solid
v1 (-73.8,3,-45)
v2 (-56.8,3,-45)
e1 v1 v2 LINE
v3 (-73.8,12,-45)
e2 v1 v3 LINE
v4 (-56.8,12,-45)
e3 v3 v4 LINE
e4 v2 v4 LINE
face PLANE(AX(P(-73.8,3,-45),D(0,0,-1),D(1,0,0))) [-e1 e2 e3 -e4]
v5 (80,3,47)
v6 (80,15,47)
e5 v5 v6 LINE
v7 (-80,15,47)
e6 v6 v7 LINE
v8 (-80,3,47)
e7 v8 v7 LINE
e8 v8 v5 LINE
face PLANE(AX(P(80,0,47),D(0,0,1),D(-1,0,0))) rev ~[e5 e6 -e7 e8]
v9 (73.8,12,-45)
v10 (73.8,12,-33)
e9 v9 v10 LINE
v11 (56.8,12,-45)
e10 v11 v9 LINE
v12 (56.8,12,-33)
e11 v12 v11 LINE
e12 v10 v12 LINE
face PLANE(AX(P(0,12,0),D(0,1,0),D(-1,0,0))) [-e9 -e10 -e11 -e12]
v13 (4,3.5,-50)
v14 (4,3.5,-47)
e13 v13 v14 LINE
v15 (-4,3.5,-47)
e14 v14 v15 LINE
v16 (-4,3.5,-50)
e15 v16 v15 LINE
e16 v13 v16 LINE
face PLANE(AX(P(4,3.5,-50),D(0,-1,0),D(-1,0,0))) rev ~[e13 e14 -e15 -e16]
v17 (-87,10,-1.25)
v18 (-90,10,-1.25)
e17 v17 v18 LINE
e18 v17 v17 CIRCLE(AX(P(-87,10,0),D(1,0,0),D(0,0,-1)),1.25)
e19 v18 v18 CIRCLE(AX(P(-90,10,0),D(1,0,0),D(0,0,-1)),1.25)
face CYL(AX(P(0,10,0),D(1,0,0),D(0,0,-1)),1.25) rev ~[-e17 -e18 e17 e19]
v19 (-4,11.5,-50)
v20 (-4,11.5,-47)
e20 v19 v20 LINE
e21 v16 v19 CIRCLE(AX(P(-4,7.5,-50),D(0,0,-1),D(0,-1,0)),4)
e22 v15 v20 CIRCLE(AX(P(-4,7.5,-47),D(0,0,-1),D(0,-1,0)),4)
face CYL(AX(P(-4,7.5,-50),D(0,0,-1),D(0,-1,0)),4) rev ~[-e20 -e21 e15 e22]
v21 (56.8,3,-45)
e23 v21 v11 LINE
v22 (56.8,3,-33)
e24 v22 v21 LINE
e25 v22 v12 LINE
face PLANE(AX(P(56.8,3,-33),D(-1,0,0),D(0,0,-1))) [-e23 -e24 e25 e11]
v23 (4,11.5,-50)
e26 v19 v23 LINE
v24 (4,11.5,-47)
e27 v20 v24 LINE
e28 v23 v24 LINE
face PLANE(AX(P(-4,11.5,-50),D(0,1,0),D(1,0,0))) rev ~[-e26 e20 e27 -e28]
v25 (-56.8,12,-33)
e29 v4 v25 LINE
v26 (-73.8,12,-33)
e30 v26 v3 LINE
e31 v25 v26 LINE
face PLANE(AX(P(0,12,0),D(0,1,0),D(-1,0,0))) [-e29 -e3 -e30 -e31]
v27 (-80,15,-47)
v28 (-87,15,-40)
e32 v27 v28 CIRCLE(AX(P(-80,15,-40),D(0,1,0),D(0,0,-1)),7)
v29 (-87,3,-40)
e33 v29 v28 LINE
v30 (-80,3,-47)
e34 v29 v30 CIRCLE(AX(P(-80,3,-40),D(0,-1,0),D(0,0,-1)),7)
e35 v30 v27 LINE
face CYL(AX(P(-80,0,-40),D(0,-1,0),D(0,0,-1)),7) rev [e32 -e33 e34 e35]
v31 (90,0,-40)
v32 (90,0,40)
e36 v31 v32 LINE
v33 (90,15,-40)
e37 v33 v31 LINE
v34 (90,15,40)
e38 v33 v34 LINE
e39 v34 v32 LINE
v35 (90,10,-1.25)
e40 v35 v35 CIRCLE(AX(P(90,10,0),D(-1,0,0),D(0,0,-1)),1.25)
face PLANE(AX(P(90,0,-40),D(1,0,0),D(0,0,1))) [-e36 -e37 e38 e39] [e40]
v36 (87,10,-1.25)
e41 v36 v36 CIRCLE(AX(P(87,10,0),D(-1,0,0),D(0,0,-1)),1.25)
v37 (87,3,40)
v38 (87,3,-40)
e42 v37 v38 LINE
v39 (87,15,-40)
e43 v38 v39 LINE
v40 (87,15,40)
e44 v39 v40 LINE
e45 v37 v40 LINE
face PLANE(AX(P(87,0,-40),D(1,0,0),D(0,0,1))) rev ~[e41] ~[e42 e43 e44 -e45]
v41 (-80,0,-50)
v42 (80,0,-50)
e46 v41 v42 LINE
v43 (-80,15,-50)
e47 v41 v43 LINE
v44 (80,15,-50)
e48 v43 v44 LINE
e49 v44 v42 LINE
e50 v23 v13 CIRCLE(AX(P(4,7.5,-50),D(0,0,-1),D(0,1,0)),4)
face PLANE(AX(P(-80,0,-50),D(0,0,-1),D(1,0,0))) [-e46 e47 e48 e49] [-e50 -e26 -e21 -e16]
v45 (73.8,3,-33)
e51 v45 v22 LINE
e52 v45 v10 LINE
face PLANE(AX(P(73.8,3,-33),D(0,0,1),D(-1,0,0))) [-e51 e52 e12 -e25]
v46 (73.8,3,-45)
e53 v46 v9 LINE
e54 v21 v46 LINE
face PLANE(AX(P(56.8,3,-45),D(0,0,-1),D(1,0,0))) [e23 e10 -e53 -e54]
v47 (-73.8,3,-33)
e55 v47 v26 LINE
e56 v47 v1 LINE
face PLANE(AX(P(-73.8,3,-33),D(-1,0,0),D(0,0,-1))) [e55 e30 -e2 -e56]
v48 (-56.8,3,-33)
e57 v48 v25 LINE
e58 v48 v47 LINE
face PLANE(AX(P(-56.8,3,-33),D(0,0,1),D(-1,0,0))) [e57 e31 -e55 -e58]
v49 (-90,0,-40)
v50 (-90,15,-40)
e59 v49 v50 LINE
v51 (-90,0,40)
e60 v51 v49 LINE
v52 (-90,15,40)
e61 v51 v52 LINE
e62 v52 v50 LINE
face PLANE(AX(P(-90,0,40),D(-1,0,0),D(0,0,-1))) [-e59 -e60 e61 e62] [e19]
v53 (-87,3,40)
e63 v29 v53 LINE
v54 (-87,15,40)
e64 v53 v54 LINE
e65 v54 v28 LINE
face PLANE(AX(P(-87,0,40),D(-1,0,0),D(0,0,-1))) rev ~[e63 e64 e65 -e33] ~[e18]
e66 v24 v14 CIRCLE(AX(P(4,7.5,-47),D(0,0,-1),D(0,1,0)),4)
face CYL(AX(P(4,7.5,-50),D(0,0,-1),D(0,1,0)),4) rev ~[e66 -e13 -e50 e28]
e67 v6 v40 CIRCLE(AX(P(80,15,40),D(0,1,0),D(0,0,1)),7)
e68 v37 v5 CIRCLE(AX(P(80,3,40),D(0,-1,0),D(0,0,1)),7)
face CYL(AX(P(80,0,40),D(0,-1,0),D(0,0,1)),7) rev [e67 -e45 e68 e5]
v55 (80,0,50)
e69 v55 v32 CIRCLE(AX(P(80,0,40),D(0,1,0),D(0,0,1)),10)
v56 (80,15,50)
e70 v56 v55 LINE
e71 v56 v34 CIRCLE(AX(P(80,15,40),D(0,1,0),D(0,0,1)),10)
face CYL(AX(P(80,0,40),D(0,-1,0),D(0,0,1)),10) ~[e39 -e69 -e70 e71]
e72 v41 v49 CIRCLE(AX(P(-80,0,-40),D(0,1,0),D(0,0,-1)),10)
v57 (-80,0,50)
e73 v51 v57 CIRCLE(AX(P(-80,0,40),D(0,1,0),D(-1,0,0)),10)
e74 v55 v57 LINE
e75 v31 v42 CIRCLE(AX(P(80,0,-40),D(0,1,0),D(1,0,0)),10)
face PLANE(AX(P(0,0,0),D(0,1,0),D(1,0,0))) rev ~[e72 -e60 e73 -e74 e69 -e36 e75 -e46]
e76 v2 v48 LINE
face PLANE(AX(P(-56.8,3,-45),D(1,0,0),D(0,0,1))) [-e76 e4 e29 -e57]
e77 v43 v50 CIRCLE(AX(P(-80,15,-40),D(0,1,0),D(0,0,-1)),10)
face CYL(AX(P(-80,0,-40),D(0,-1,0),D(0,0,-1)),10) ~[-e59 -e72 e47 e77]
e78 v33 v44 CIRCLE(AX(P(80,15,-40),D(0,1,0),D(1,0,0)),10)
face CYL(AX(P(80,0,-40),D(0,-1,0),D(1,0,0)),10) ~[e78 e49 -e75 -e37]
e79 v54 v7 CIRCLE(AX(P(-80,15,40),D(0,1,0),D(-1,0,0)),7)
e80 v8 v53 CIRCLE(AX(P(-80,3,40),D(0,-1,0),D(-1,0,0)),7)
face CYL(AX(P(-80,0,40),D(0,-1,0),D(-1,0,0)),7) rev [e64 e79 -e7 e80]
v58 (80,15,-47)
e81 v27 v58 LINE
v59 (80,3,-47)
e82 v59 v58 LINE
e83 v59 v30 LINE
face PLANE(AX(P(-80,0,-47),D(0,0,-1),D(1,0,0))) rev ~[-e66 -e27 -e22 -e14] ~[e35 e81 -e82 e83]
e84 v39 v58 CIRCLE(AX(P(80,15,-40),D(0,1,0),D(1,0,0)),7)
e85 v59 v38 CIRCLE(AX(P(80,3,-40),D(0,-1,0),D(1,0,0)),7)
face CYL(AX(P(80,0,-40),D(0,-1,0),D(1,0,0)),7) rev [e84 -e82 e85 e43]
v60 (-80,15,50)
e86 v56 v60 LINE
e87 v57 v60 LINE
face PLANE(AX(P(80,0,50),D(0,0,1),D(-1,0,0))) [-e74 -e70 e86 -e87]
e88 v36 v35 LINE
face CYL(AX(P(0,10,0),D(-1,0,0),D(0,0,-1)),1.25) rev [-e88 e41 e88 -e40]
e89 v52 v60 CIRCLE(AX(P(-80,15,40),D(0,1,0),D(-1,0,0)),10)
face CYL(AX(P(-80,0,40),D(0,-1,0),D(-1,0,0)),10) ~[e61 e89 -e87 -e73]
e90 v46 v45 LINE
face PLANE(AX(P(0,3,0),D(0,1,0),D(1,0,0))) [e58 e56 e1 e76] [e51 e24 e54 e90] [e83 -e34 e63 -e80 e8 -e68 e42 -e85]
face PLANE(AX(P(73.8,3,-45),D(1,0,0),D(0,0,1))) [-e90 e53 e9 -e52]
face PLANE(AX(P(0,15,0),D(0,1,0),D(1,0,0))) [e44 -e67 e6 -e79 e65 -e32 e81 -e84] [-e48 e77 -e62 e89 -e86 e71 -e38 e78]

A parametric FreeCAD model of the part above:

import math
import FreeCAD as App
import Part
import Sketcher

V = App.Vector


def add_polygon(sketch, points):
    """Adds a closed chain of lines whose ends are joined by coincident constraints."""
    first, n = sketch.GeometryCount, len(points)
    for a, b in zip(points, points[1:] + points[:1]):
        sketch.addGeometry(Part.LineSegment(App.Vector(*a, 0), App.Vector(*b, 0)), False)
    for i in range(n):
        sketch.addConstraint(Sketcher.Constraint("Coincident", first + i, 2, first + (i + 1) % n, 1))

doc = App.newDocument("Part")
body = doc.addObject("PartDesign::Body", "Body")

# Sketch on XZ plane
sketch1 = doc.addObject("Sketcher::SketchObject", "Sketch")
body.addObject(sketch1)
sketch1.AttachmentSupport = (doc.XZ_Plane, [""])
sketch1.MapMode = "FlatFace"
sketch1.addGeometry([
    Part.LineSegment(V(80, -50, 0), V(-80, -50, 0)),  # 0
    Part.ArcOfCircle(Part.Circle(V(-80, -40, 0), V(0, 0, 1), 10), math.radians(180), math.radians(270)),  # 1
    Part.LineSegment(V(-90, -40, 0), V(-90, 40, 0)),  # 2
    Part.ArcOfCircle(Part.Circle(V(-80, 40, 0), V(0, 0, 1), 10), math.radians(90), math.radians(180)),  # 3
    Part.LineSegment(V(-80, 50, 0), V(80, 50, 0)),  # 4
    Part.ArcOfCircle(Part.Circle(V(80, 40, 0), V(0, 0, 1), 10), math.radians(0), math.radians(90)),  # 5
    Part.LineSegment(V(90, 40, 0), V(90, -40, 0)),  # 6
    Part.ArcOfCircle(Part.Circle(V(80, -40, 0), V(0, 0, 1), 10), math.radians(-90), math.radians(0)),  # 7
], False)
sketch1.addConstraint([
    Sketcher.Constraint("Tangent", 0, 2, 1, 2),
    Sketcher.Constraint("Tangent", 1, 1, 2, 1),
    Sketcher.Constraint("Tangent", 2, 2, 3, 2),
    Sketcher.Constraint("Tangent", 3, 1, 4, 1),
    Sketcher.Constraint("Tangent", 4, 2, 5, 2),
    Sketcher.Constraint("Tangent", 5, 1, 6, 1),
    Sketcher.Constraint("Tangent", 6, 2, 7, 2),
    Sketcher.Constraint("Tangent", 7, 1, 0, 1),
    Sketcher.Constraint("Horizontal", 0),
    Sketcher.Constraint("Vertical", 2),
    Sketcher.Constraint("Horizontal", 4),
    Sketcher.Constraint("Vertical", 6),
    Sketcher.Constraint("Equal", 1, 3),
    Sketcher.Constraint("Equal", 3, 5),
    Sketcher.Constraint("Equal", 5, 7),
    Sketcher.Constraint("Symmetric", 1, 3, 5, 3, -1, 1),
    Sketcher.Constraint("Radius", 1, 10.0),
    Sketcher.Constraint("DistanceY", 0, 2, 3, 1, 100.0),
    Sketcher.Constraint("DistanceX", 0, 2, 0, 1, 160.0),
])
pad1 = doc.addObject("PartDesign::Pad", "Pad")
body.addObject(pad1)
pad1.Profile = sketch1
pad1.Length = 3
pad1.Reversed = True

# Sketch on XZ plane
sketch2 = doc.addObject("Sketcher::SketchObject", "Sketch001")
body.addObject(sketch2)
sketch2.AttachmentSupport = (doc.XZ_Plane, [""])
sketch2.MapMode = "FlatFace"
sketch2.addGeometry([
    Part.LineSegment(V(80, -50, 0), V(-80, -50, 0)),  # 0
    Part.ArcOfCircle(Part.Circle(V(-80, -40, 0), V(0, 0, 1), 10), math.radians(180), math.radians(270)),  # 1
    Part.LineSegment(V(-90, -40, 0), V(-90, 40, 0)),  # 2
    Part.ArcOfCircle(Part.Circle(V(-80, 40, 0), V(0, 0, 1), 10), math.radians(90), math.radians(180)),  # 3
    Part.LineSegment(V(-80, 50, 0), V(80, 50, 0)),  # 4
    Part.ArcOfCircle(Part.Circle(V(80, 40, 0), V(0, 0, 1), 10), math.radians(0), math.radians(90)),  # 5
    Part.LineSegment(V(90, 40, 0), V(90, -40, 0)),  # 6
    Part.ArcOfCircle(Part.Circle(V(80, -40, 0), V(0, 0, 1), 10), math.radians(-90), math.radians(0)),  # 7
    Part.ArcOfCircle(Part.Circle(V(80, -40, 0), V(0, 0, 1), 7), math.radians(-90), math.radians(0)),  # 8
    Part.LineSegment(V(87, -40, 0), V(87, 40, 0)),  # 9
    Part.ArcOfCircle(Part.Circle(V(80, 40, 0), V(0, 0, 1), 7), math.radians(0), math.radians(90)),  # 10
    Part.LineSegment(V(80, 47, 0), V(-80, 47, 0)),  # 11
    Part.ArcOfCircle(Part.Circle(V(-80, 40, 0), V(0, 0, 1), 7), math.radians(90), math.radians(180)),  # 12
    Part.LineSegment(V(-87, 40, 0), V(-87, -40, 0)),  # 13
    Part.ArcOfCircle(Part.Circle(V(-80, -40, 0), V(0, 0, 1), 7), math.radians(180), math.radians(270)),  # 14
    Part.LineSegment(V(-80, -47, 0), V(80, -47, 0)),  # 15
], False)
sketch2.addConstraint([
    Sketcher.Constraint("Tangent", 0, 2, 1, 2),
    Sketcher.Constraint("Tangent", 1, 1, 2, 1),
    Sketcher.Constraint("Tangent", 2, 2, 3, 2),
    Sketcher.Constraint("Tangent", 3, 1, 4, 1),
    Sketcher.Constraint("Tangent", 4, 2, 5, 2),
    Sketcher.Constraint("Tangent", 5, 1, 6, 1),
    Sketcher.Constraint("Tangent", 6, 2, 7, 2),
    Sketcher.Constraint("Tangent", 7, 1, 0, 1),
    Sketcher.Constraint("Tangent", 8, 2, 9, 1),
    Sketcher.Constraint("Tangent", 9, 2, 10, 1),
    Sketcher.Constraint("Tangent", 10, 2, 11, 1),
    Sketcher.Constraint("Tangent", 11, 2, 12, 1),
    Sketcher.Constraint("Tangent", 12, 2, 13, 1),
    Sketcher.Constraint("Tangent", 13, 2, 14, 1),
    Sketcher.Constraint("Tangent", 14, 2, 15, 1),
    Sketcher.Constraint("Tangent", 15, 2, 8, 1),
    Sketcher.Constraint("Horizontal", 0),
    Sketcher.Constraint("Vertical", 2),
    Sketcher.Constraint("Horizontal", 4),
    Sketcher.Constraint("Vertical", 6),
    Sketcher.Constraint("Vertical", 9),
    Sketcher.Constraint("Horizontal", 11),
    Sketcher.Constraint("Vertical", 13),
    Sketcher.Constraint("Horizontal", 15),
    Sketcher.Constraint("Coincident", 8, 3, 7, 3),
    Sketcher.Constraint("Coincident", 10, 3, 5, 3),
    Sketcher.Constraint("Coincident", 12, 3, 3, 3),
    Sketcher.Constraint("Equal", 1, 3),
    Sketcher.Constraint("Equal", 3, 5),
    Sketcher.Constraint("Equal", 5, 7),
    Sketcher.Constraint("Equal", 12, 14),
    Sketcher.Constraint("Symmetric", 1, 3, 5, 3, -1, 1),
    Sketcher.Constraint("Radius", 1, 10.0),
    Sketcher.Constraint("Radius", 8, 7.0),
    Sketcher.Constraint("DistanceX", 0, 2, 0, 1, 160.0),
    Sketcher.Constraint("DistanceY", 2, 1, 2, 2, 80.0),
])
pad2 = doc.addObject("PartDesign::Pad", "Pad001")
body.addObject(pad2)
pad2.Profile = sketch2
pad2.Length = 15
pad2.Reversed = True

# Sketch on XY plane
sketch3 = doc.addObject("Sketcher::SketchObject", "Sketch002")
body.addObject(sketch3)
sketch3.AttachmentSupport = (doc.XY_Plane, [""])
sketch3.MapMode = "FlatFace"
sketch3.AttachmentOffset = App.Placement(V(0, 0, -50), App.Rotation())
sketch3.addGeometry([
    Part.ArcOfCircle(Part.Circle(V(-4, 7.5, 0), V(0, 0, 1), 4), math.radians(90), math.radians(270)),
    Part.LineSegment(V(-4, 11.5, 0), V(4, 11.5, 0)),
    Part.ArcOfCircle(Part.Circle(V(4, 7.5, 0), V(0, 0, 1), 4), math.radians(-90), math.radians(90)),
    Part.LineSegment(V(4, 3.5, 0), V(-4, 3.5, 0)),
], False)
sketch3.addConstraint([
    Sketcher.Constraint("Tangent", 0, 1, 1, 1),
    Sketcher.Constraint("Tangent", 1, 2, 2, 2),
    Sketcher.Constraint("Tangent", 2, 1, 3, 1),
    Sketcher.Constraint("Tangent", 3, 2, 0, 2),
    Sketcher.Constraint("Horizontal", 1),
    Sketcher.Constraint("Horizontal", 3),
    Sketcher.Constraint("Radius", 0, 4.0),
    Sketcher.Constraint("DistanceX", 1, 1, 1, 2, 8.0),
    Sketcher.Constraint("DistanceX", 0, 3, -1, 1, 4.0),
    Sketcher.Constraint("DistanceY", -1, 1, 0, 3, 7.5),
])
pocket1 = doc.addObject("PartDesign::Pocket", "Pocket")
body.addObject(pocket1)
pocket1.Profile = sketch3
pocket1.Length = 3
pocket1.Reversed = True

# Sketch on YZ plane
sketch4 = doc.addObject("Sketcher::SketchObject", "Sketch003")
body.addObject(sketch4)
sketch4.AttachmentSupport = (doc.YZ_Plane, [""])
sketch4.MapMode = "FlatFace"
sketch4.addGeometry(Part.Circle(V(10, 0, 0), V(0, 0, 1), 1.2), False)
sketch4.addConstraint([
    Sketcher.Constraint("PointOnObject", 0, 3, -1),
    Sketcher.Constraint("Diameter", 0, 2.5),
    Sketcher.Constraint("DistanceX", -1, 1, 0, 3, 10.0),
])
pocket2 = doc.addObject("PartDesign::Pocket", "Pocket001")
body.addObject(pocket2)
pocket2.Profile = sketch4
pocket2.Type = "ThroughAll"
pocket2.Midplane = True

# Sketch on XZ plane
sketch5 = doc.addObject("Sketcher::SketchObject", "Sketch004")
body.addObject(sketch5)
sketch5.AttachmentSupport = (doc.XZ_Plane, [""])
sketch5.MapMode = "FlatFace"
sketch5.AttachmentOffset = App.Placement(V(0, 0, -3), App.Rotation())
add_polygon(sketch5, [(-57, -45), (-74, -45), (-74, -33), (-57, -33)])  # lines 0-3
sketch5.addConstraint([
    Sketcher.Constraint("Horizontal", 0),
    Sketcher.Constraint("Vertical", 1),
    Sketcher.Constraint("Horizontal", 2),
    Sketcher.Constraint("Vertical", 3),
    Sketcher.Constraint("DistanceX", 0, 2, 0, 1, 17.0),
    Sketcher.Constraint("DistanceY", 1, 1, 1, 2, 12.0),
    Sketcher.Constraint("DistanceY", 0, 2, -1, 1, 45.0),
    Sketcher.Constraint("DistanceX", 0, 2, -1, 1, 73.8),
])
pad3 = doc.addObject("PartDesign::Pad", "Pad002")
body.addObject(pad3)
pad3.Profile = sketch5
pad3.Length = 9
pad3.Reversed = True

# Sketch on XZ plane
sketch6 = doc.addObject("Sketcher::SketchObject", "Sketch005")
body.addObject(sketch6)
sketch6.AttachmentSupport = (doc.XZ_Plane, [""])
sketch6.MapMode = "FlatFace"
sketch6.AttachmentOffset = App.Placement(V(0, 0, -3), App.Rotation())
add_polygon(sketch6, [(57, -45), (57, -33), (74, -33), (74, -45)])  # lines 0-3
sketch6.addConstraint([
    Sketcher.Constraint("Vertical", 0),
    Sketcher.Constraint("Horizontal", 1),
    Sketcher.Constraint("Vertical", 2),
    Sketcher.Constraint("Horizontal", 3),
    Sketcher.Constraint("DistanceX", 1, 1, 1, 2, 17.0),
    Sketcher.Constraint("DistanceY", 0, 1, 0, 2, 12.0),
    Sketcher.Constraint("DistanceY", 0, 2, -1, 1, 33.0),
    Sketcher.Constraint("DistanceX", -1, 1, 0, 2, 56.8),
])
pad4 = doc.addObject("PartDesign::Pad", "Pad003")
body.addObject(pad4)
pad4.Profile = sketch6
pad4.Length = 9
pad4.Reversed = True

doc.recompute()
